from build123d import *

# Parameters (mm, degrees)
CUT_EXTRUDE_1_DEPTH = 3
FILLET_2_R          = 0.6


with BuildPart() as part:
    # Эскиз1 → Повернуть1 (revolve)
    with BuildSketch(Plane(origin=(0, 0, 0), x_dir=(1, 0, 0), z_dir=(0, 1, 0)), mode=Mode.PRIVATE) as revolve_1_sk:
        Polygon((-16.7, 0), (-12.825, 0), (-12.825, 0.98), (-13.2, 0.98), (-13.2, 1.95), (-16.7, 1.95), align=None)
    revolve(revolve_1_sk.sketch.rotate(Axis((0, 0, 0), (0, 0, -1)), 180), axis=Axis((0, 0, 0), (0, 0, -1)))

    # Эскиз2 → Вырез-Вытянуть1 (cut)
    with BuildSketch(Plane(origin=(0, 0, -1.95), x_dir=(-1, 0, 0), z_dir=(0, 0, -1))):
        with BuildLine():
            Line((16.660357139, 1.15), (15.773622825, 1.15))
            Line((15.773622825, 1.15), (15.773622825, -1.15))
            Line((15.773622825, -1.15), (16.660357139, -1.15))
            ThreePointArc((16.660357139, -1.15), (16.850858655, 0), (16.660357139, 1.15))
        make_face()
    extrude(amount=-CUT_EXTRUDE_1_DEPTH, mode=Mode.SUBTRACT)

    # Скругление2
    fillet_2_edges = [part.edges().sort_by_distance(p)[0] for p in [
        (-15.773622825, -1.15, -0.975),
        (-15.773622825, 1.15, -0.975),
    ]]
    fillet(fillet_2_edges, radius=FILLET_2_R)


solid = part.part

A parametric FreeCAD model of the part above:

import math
import FreeCAD as App
import Part
import Sketcher

V = App.Vector


def edges_at(feature, points):
    """Names of the edges that pass closest to the given points."""
    edges = feature.Shape.Edges
    near = lambda p: min(range(len(edges)), key=lambda i: edges[i].distToShape(Part.Vertex(*p))[0])
    return sorted({f"Edge{near(p) + 1}" for p in points})

doc = App.newDocument("Part")
body = doc.addObject("PartDesign::Body", "Body")

# Sketch on XZ plane
sketch1 = doc.addObject("Sketcher::SketchObject", "Sketch")
body.addObject(sketch1)
sketch1.AttachmentSupport = (doc.XZ_Plane, [""])
sketch1.MapMode = "FlatFace"
sketch1.addGeometry(Part.LineSegment(V(-16.7, 0, 0), V(-12.825, 0, 0)), False)
sketch1.addGeometry(Part.LineSegment(V(-12.825, 0, 0), V(-12.825, -0.98, 0)), False)
sketch1.addGeometry(Part.LineSegment(V(-12.825, -0.98, 0), V(-13.2, -0.98, 0)), False)
sketch1.addGeometry(Part.LineSegment(V(-13.2, -0.98, 0), V(-13.2, -1.95, 0)), False)
sketch1.addGeometry(Part.LineSegment(V(-13.2, -1.95, 0), V(-16.7, -1.95, 0)), False)
sketch1.addGeometry(Part.LineSegment(V(-16.7, -1.95, 0), V(-16.7, 0, 0)), False)
sketch1.addConstraint(Sketcher.Constraint("Coincident", 0, 2, 1, 1))
sketch1.addConstraint(Sketcher.Constraint("Coincident", 1, 2, 2, 1))
sketch1.addConstraint(Sketcher.Constraint("Coincident", 2, 2, 3, 1))
sketch1.addConstraint(Sketcher.Constraint("Coincident", 3, 2, 4, 1))
sketch1.addConstraint(Sketcher.Constraint("Coincident", 4, 2, 5, 1))
sketch1.addConstraint(Sketcher.Constraint("Coincident", 5, 2, 0, 1))
sketch1.addConstraint(Sketcher.Constraint("Horizontal", 0))
sketch1.addConstraint(Sketcher.Constraint("Vertical", 1))
sketch1.addConstraint(Sketcher.Constraint("Horizontal", 2))
sketch1.addConstraint(Sketcher.Constraint("Vertical", 3))
sketch1.addConstraint(Sketcher.Constraint("Horizontal", 4))
sketch1.addConstraint(Sketcher.Constraint("Vertical", 5))
sketch1.addConstraint(Sketcher.Constraint("PointOnObject", 0, 2, -1))
sketch1.addConstraint(Sketcher.Constraint("DistanceX", 4, 2, 4, 1, 3.5))
sketch1.addConstraint(Sketcher.Constraint("DistanceY", 1, 2, 1, 1, 0.98))
sketch1.addConstraint(Sketcher.Constraint("DistanceY", 3, 2, 3, 1, 0.97))
sketch1.addConstraint(Sketcher.Constraint("DistanceX", 2, 2, -1, 1, 13.2))
sketch1.addConstraint(Sketcher.Constraint("DistanceX", 0, 1, 0, 2, 3.875))
revolution = doc.addObject("PartDesign::Revolution", "Revolution")
body.addObject(revolution)
revolution.Profile = sketch1
revolution.ReferenceAxis = (sketch1, ["V_Axis"])
revolution.Angle = 360

# Sketch on XY plane
sketch2 = doc.addObject("Sketcher::SketchObject", "Sketch001")
body.addObject(sketch2)
sketch2.AttachmentSupport = (doc.XY_Plane, [""])
sketch2.MapMode = "FlatFace"
sketch2.AttachmentOffset = App.Placement(V(0, 0, -1.95), App.Rotation())
sketch2.addGeometry(Part.LineSegment(V(-16.660357, 1.15, 0), V(-15.773623, 1.15, 0)), False)
sketch2.addGeometry(Part.LineSegment(V(-15.773623, 1.15, 0), V(-15.773623, -1.15, 0)), False)
sketch2.addGeometry(Part.LineSegment(V(-15.773623, -1.15, 0), V(-16.660357, -1.15, 0)), False)
sketch2.addGeometry(Part.ArcOfCircle(Part.Circle(V(-13.284507, 0, 0), V(0, 0, 1), 3.566352), math.radians(161.188337), math.radians(198.811663)), False)
sketch2.addConstraint(Sketcher.Constraint("Coincident", 0, 2, 1, 1))
sketch2.addConstraint(Sketcher.Constraint("Coincident", 1, 2, 2, 1))
sketch2.addConstraint(Sketcher.Constraint("Coincident", 2, 2, 3, 2))
sketch2.addConstraint(Sketcher.Constraint("Coincident", 3, 1, 0, 1))
sketch2.addConstraint(Sketcher.Constraint("Horizontal", 0))
sketch2.addConstraint(Sketcher.Constraint("Vertical", 1))
sketch2.addConstraint(Sketcher.Constraint("Horizontal", 2))
sketch2.addConstraint(Sketcher.Constraint("Symmetric", 2, 2, 3, 1, -1))
sketch2.addConstraint(Sketcher.Constraint("DistanceY", 1, 2, 1, 1, 2.3))
sketch2.addConstraint(Sketcher.Constraint("Radius", 3, 3.566352))
sketch2.addConstraint(Sketcher.Constraint("DistanceX", 0, 1, 0, 2, 0.886734))
sketch2.addConstraint(Sketcher.Constraint("DistanceX", 3, 3, -1, 1, 13.284507))
pocket1 = doc.addObject("PartDesign::Pocket", "Pocket")
body.addObject(pocket1)
pocket1.Profile = sketch2
pocket1.Length = 3
pocket1.Reversed = True
doc.recompute()

fillet = doc.addObject("PartDesign::Fillet", "Fillet")
body.addObject(fillet)
fillet.Base = (pocket1, edges_at(pocket1, [(-15.774, -1.15, -0.975), (-15.774, 1.15, -0.975)]))
fillet.Radius = 0.6

doc.recompute()
